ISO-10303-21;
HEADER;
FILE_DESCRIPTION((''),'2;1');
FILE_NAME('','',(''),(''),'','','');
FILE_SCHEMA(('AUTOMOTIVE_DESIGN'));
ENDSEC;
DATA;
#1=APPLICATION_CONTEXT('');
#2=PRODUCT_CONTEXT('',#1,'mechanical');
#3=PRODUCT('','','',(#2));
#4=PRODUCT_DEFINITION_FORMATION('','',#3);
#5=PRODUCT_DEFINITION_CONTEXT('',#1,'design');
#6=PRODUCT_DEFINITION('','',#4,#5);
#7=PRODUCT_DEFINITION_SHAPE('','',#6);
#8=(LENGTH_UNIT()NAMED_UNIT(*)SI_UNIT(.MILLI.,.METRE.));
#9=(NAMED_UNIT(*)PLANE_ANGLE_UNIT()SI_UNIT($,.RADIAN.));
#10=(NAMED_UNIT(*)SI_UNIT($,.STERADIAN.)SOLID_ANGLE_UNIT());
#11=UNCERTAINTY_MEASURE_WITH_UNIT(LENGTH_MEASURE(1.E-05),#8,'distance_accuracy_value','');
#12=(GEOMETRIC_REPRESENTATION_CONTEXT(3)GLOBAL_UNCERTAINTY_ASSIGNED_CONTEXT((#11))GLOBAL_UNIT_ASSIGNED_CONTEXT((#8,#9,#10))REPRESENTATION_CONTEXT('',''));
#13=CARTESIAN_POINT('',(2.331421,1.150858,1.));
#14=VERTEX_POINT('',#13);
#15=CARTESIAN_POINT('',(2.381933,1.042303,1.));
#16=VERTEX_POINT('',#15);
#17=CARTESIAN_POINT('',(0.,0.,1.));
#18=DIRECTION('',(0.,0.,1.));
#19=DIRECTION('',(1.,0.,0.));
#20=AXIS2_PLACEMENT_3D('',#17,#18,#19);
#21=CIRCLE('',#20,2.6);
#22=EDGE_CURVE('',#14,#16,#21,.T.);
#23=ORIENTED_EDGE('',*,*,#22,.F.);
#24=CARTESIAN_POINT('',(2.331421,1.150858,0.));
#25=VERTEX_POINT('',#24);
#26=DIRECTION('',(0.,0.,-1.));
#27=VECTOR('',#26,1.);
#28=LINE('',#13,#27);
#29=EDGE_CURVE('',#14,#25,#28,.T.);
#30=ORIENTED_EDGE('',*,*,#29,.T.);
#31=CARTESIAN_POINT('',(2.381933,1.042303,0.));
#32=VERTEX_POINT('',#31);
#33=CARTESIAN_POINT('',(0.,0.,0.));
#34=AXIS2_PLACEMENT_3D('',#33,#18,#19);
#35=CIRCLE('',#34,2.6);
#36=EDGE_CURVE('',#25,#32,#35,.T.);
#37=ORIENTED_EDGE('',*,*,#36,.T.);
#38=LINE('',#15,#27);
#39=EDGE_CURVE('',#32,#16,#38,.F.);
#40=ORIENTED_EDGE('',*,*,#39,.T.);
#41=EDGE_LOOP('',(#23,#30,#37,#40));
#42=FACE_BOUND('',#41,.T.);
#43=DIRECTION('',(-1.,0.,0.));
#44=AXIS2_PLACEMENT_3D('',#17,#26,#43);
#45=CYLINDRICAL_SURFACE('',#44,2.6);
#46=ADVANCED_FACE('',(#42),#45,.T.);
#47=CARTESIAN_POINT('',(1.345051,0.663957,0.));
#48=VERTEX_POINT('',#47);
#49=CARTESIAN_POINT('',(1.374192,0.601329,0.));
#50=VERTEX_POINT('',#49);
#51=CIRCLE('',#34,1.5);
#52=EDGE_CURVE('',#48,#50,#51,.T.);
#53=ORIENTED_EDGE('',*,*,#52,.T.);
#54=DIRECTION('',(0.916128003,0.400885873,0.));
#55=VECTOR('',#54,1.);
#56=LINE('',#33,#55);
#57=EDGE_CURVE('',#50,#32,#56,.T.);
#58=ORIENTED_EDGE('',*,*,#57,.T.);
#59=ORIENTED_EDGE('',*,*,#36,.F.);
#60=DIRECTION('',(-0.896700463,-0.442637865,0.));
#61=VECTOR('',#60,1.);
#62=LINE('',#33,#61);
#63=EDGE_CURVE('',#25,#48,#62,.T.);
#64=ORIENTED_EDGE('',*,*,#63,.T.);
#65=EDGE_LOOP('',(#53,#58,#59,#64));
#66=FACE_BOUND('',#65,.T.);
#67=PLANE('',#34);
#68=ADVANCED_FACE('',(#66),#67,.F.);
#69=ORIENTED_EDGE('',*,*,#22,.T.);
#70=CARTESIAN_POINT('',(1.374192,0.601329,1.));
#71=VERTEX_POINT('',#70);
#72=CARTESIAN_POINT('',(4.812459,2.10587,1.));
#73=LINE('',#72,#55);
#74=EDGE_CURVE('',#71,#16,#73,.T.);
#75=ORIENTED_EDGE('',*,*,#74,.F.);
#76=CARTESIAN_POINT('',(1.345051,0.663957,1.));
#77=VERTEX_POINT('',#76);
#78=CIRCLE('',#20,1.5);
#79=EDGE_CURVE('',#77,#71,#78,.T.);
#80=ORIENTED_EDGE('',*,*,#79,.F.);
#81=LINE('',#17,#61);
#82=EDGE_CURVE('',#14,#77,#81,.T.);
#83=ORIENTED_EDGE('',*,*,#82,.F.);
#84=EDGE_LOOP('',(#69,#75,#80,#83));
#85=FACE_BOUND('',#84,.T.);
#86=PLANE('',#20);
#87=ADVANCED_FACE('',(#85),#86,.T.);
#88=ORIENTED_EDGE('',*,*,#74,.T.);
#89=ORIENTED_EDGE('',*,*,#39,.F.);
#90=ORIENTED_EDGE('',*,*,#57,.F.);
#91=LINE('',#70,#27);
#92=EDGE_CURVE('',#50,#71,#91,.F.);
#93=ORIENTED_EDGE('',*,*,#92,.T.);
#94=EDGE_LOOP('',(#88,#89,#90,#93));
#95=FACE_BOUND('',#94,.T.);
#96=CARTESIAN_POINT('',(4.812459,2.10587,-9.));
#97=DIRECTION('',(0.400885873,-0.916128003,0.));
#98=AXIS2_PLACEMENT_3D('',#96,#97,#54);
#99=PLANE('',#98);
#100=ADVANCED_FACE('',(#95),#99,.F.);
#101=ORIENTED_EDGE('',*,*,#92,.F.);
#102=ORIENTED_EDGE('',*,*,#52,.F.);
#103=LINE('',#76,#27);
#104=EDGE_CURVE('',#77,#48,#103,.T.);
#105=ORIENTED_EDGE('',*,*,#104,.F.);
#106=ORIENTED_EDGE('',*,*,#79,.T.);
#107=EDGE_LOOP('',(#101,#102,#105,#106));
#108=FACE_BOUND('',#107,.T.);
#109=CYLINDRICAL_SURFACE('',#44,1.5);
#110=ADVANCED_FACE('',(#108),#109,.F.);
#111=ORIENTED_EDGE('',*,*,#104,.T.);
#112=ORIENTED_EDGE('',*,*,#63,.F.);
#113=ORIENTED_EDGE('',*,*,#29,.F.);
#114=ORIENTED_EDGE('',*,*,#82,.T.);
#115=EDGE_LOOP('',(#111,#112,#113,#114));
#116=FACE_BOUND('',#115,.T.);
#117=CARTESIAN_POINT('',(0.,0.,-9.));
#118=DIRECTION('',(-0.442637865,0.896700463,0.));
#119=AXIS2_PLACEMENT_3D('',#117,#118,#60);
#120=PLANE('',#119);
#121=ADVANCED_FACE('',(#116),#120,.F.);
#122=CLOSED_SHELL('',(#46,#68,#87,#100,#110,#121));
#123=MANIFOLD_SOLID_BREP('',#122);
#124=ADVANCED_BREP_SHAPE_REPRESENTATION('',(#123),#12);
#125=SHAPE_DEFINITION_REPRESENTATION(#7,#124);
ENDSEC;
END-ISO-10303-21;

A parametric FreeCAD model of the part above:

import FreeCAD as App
import Part
import Sketcher
from FreeCAD import Vector


def add_polygon(sketch, points):
    """Adds a closed chain of lines whose ends are joined by coincident constraints."""
    first, n = sketch.GeometryCount, len(points)
    for a, b in zip(points, points[1:] + points[:1]):
        sketch.addGeometry(Part.LineSegment(App.Vector(*a, 0), App.Vector(*b, 0)), False)
    for i in range(n):
        sketch.addConstraint(Sketcher.Constraint("Coincident", first + i, 2, first + (i + 1) % n, 1))

doc = App.newDocument("Part")
body = doc.addObject("PartDesign::Body", "Body")

# Sketch on XY plane
sketch1 = doc.addObject("Sketcher::SketchObject", "Sketch")
body.addObject(sketch1)
sketch1.AttachmentSupport = (doc.XY_Plane, [""])
sketch1.MapMode = "FlatFace"
sketch1.addGeometry(Part.Circle(Vector(0, 0, 0), Vector(0, 0, 1), 2.6), False)
sketch1.addGeometry(Part.Circle(Vector(0, 0, 0), Vector(0, 0, 1), 1.5), False)
sketch1.addConstraint(Sketcher.Constraint("Coincident", 0, 3, -1, 1))
sketch1.addConstraint(Sketcher.Constraint("Coincident", 1, 3, -1, 1))
sketch1.addConstraint(Sketcher.Constraint("Diameter", 1, 3.0))
sketch1.addConstraint(Sketcher.Constraint("Diameter", 0, 5.2))
pad1 = doc.addObject("PartDesign::Pad", "Pad")
body.addObject(pad1)
pad1.Profile = sketch1
pad1.Length = 1

# Sketch on XY plane
sketch2 = doc.addObject("Sketcher::SketchObject", "Sketch001")
body.addObject(sketch2)
sketch2.AttachmentSupport = (doc.XY_Plane, [""])
sketch2.MapMode = "FlatFace"
sketch2.AttachmentOffset = App.Placement(Vector(0, 0, 1), App.Rotation())
add_polygon(sketch2, [(4.81, 2.38), (0, 0), (4.81, 2.11)])  # lines 0-2
sketch2.addConstraint(Sketcher.Constraint("Vertical", 2))
sketch2.addConstraint(Sketcher.Constraint("Coincident", 0, 2, -1, 1))
sketch2.addConstraint(Sketcher.Constraint("DistanceY", 2, 1, 2, 2, 0.269702))
sketch2.addConstraint(Sketcher.Constraint("DistanceX", -1, 1, 1, 2, 4.812459))
sketch2.addConstraint(Sketcher.Constraint("DistanceY", -1, 1, 1, 2, 2.10587))
pocket1 = doc.addObject("PartDesign::Pocket", "Pocket")
body.addObject(pocket1)
pocket1.Profile = sketch2
pocket1.Length = 10

doc.recompute()
